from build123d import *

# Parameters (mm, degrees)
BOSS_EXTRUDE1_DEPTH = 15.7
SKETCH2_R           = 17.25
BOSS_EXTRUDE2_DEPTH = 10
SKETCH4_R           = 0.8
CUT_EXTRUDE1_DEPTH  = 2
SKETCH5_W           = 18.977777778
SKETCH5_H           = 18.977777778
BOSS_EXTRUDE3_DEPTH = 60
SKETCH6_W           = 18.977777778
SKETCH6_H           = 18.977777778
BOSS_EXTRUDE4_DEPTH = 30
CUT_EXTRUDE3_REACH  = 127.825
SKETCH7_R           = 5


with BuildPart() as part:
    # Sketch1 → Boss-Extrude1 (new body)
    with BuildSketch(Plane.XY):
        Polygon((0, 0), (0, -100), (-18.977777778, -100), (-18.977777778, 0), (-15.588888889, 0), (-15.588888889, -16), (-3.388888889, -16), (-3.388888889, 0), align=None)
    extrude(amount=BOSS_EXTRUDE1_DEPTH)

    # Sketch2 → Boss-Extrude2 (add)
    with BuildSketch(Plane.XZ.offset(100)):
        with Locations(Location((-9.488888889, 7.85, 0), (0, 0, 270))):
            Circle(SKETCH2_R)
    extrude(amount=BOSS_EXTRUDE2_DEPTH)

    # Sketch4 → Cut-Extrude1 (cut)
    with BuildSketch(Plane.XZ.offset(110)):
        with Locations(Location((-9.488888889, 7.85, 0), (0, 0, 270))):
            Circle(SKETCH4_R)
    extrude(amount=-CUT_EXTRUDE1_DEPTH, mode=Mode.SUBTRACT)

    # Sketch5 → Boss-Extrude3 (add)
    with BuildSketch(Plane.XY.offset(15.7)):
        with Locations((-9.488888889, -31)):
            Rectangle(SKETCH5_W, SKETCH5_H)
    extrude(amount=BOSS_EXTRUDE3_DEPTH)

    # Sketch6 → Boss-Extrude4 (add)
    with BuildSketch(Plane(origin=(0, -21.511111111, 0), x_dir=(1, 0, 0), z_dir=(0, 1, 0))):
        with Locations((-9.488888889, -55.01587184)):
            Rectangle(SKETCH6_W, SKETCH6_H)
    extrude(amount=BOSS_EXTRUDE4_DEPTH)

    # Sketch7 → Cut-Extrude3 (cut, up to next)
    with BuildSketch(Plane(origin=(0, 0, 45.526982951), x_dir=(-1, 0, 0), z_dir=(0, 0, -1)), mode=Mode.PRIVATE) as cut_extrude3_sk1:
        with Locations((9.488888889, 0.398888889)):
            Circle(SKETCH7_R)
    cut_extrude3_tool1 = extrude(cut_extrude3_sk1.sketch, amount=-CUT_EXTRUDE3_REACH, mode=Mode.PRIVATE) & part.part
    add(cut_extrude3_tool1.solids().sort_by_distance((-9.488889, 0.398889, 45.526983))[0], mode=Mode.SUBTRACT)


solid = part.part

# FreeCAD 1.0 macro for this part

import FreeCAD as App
import Part
import Sketcher

V = App.Vector
Q = App.Units.Quantity

doc = App.newDocument("Part")
body = doc.addObject("PartDesign::Body", "Body")

# Sketch on XY plane
sketch1 = body.newObject("Sketcher::SketchObject", "Sketch")
sketch1.AttachmentSupport = (doc.getObject("XY_Plane"), [""])
sketch1.MapMode = "FlatFace"
sketch1.addGeometry([
    Part.LineSegment(V(0, -100, 0), V(0, 0, 0)),  # 0
    Part.LineSegment(V(0, 0, 0), V(-3.388889, 0, 0)),  # 1
    Part.LineSegment(V(-3.388889, 0, 0), V(-3.388889, -16, 0)),  # 2
    Part.LineSegment(V(-3.388889, -16, 0), V(-15.588889, -16, 0)),  # 3
    Part.LineSegment(V(-15.588889, -16, 0), V(-15.588889, 0, 0)),  # 4
    Part.LineSegment(V(-15.588889, 0, 0), V(-18.977778, 0, 0)),  # 5
    Part.LineSegment(V(-18.977778, 0, 0), V(-18.977778, -100, 0)),  # 6
    Part.LineSegment(V(-18.977778, -100, 0), V(0, -100, 0)),  # 7
], False)
sketch1.addConstraint([
    Sketcher.Constraint("Coincident", 0, 2, 1, 1),
    Sketcher.Constraint("Coincident", 1, 2, 2, 1),
    Sketcher.Constraint("Coincident", 2, 2, 3, 1),
    Sketcher.Constraint("Coincident", 3, 2, 4, 1),
    Sketcher.Constraint("Coincident", 4, 2, 5, 1),
    Sketcher.Constraint("Coincident", 5, 2, 6, 1),
    Sketcher.Constraint("Coincident", 6, 2, 7, 1),
    Sketcher.Constraint("Coincident", 7, 2, 0, 1),
    Sketcher.Constraint("Vertical", 0),
    Sketcher.Constraint("Horizontal", 1),
    Sketcher.Constraint("Vertical", 2),
    Sketcher.Constraint("Horizontal", 3),
    Sketcher.Constraint("Vertical", 4),
    Sketcher.Constraint("Horizontal", 5),
    Sketcher.Constraint("Vertical", 6),
    Sketcher.Constraint("Horizontal", 7),
    Sketcher.Constraint("Coincident", 0, 2, -1, 1),
    Sketcher.Constraint("PointOnObject", 4, 2, -1),
    Sketcher.Constraint("Equal", 1, 5),
    Sketcher.Constraint("DistanceY", 0, 1, 0, 2, Q("100 mm")),
    Sketcher.Constraint("DistanceY", 2, 2, 2, 1, Q("16 mm")),
    Sketcher.Constraint("DistanceX", 3, 2, 3, 1, Q("12.2 mm")),
    Sketcher.Constraint("DistanceX", 1, 2, 1, 1, Q("3.388889 mm")),
])
pad1 = body.newObject("PartDesign::Pad", "Pad")
pad1.Profile = sketch1
pad1.Length = 15.7

# Sketch on XZ plane
sketch2 = body.newObject("Sketcher::SketchObject", "Sketch001")
sketch2.AttachmentSupport = (doc.getObject("XZ_Plane"), [""])
sketch2.MapMode = "FlatFace"
sketch2.AttachmentOffset = App.Placement(V(0, 0, 100), App.Rotation())
sketch2.addGeometry(Part.Circle(V(-9.488889, 7.85, 0), V(0, 0, 1), 17.25), False)
sketch2.addConstraint([
    Sketcher.Constraint("Diameter", 0, Q("34.5 mm")),
    Sketcher.Constraint("DistanceY", -1, 1, 0, 3, Q("7.85 mm")),
    Sketcher.Constraint("DistanceX", 0, 3, -1, 1, Q("9.488889 mm")),
])
pad2 = body.newObject("PartDesign::Pad", "Pad001")
pad2.Profile = sketch2
pad2.Length = 10

# Sketch on XZ plane
sketch3 = body.newObject("Sketcher::SketchObject", "Sketch002")
sketch3.AttachmentSupport = (doc.getObject("XZ_Plane"), [""])
sketch3.MapMode = "FlatFace"
sketch3.AttachmentOffset = App.Placement(V(0, 0, 110), App.Rotation())
sketch3.addGeometry(Part.Circle(V(-9.488889, 7.85, 0), V(0, 0, 1), 0.8), False)
sketch3.addConstraint([
    Sketcher.Constraint("Diameter", 0, Q("1.6 mm")),
    Sketcher.Constraint("DistanceY", -1, 1, 0, 3, Q("7.85 mm")),
    Sketcher.Constraint("DistanceX", 0, 3, -1, 1, Q("9.488889 mm")),
])
pocket1 = body.newObject("PartDesign::Pocket", "Pocket")
pocket1.Profile = sketch3
pocket1.Length = 2

# Sketch on XY plane
sketch4 = body.newObject("Sketcher::SketchObject", "Sketch003")
sketch4.AttachmentSupport = (doc.getObject("XY_Plane"), [""])
sketch4.MapMode = "FlatFace"
sketch4.AttachmentOffset = App.Placement(V(0, 0, 15.7), App.Rotation())
sketch4.addGeometry([
    Part.LineSegment(V(-18.977778, -21.511111, 0), V(-18.977778, -40.488889, 0)),
    Part.LineSegment(V(-18.977778, -40.488889, 0), V(0, -40.488889, 0)),
    Part.LineSegment(V(0, -40.488889, 0), V(0, -21.511111, 0)),
    Part.LineSegment(V(0, -21.511111, 0), V(-18.977778, -21.511111, 0)),
], False)
sketch4.addConstraint([
    Sketcher.Constraint("Coincident", 0, 2, 1, 1),
    Sketcher.Constraint("Coincident", 1, 2, 2, 1),
    Sketcher.Constraint("Coincident", 2, 2, 3, 1),
    Sketcher.Constraint("Coincident", 3, 2, 0, 1),
    Sketcher.Constraint("Vertical", 0),
    Sketcher.Constraint("Horizontal", 1),
    Sketcher.Constraint("Vertical", 2),
    Sketcher.Constraint("Horizontal", 3),
    Sketcher.Constraint("PointOnObject", 1, 2, -2),
    Sketcher.Constraint("Equal", 3, 0),
    Sketcher.Constraint("DistanceX", 1, 1, 1, 2, Q("18.977778 mm")),
    Sketcher.Constraint("DistanceY", 0, 2, -1, 1, Q("40.488889 mm")),
])
pad3 = body.newObject("PartDesign::Pad", "Pad002")
pad3.Profile = sketch4
pad3.Length = 60

# Sketch on XZ plane
sketch5 = body.newObject("Sketcher::SketchObject", "Sketch004")
sketch5.AttachmentSupport = (doc.getObject("XZ_Plane"), [""])
sketch5.MapMode = "FlatFace"
sketch5.AttachmentOffset = App.Placement(V(0, 0, 21.511111), App.Rotation())
sketch5.addGeometry([
    Part.LineSegment(V(-18.977778, 45.526983, 0), V(-18.977778, 64.504761, 0)),
    Part.LineSegment(V(-18.977778, 64.504761, 0), V(0, 64.504761, 0)),
    Part.LineSegment(V(0, 64.504761, 0), V(0, 45.526983, 0)),
    Part.LineSegment(V(0, 45.526983, 0), V(-18.977778, 45.526983, 0)),
], False)
sketch5.addConstraint([
    Sketcher.Constraint("Coincident", 0, 2, 1, 1),
    Sketcher.Constraint("Coincident", 1, 2, 2, 1),
    Sketcher.Constraint("Coincident", 2, 2, 3, 1),
    Sketcher.Constraint("Coincident", 3, 2, 0, 1),
    Sketcher.Constraint("Vertical", 0),
    Sketcher.Constraint("Horizontal", 1),
    Sketcher.Constraint("Vertical", 2),
    Sketcher.Constraint("Horizontal", 3),
    Sketcher.Constraint("PointOnObject", 1, 2, -2),
    Sketcher.Constraint("Equal", 3, 0),
    Sketcher.Constraint("DistanceX", 1, 1, 1, 2, Q("18.977778 mm")),
    Sketcher.Constraint("DistanceY", -1, 1, 0, 2, Q("64.504761 mm")),
])
pad4 = body.newObject("PartDesign::Pad", "Pad003")
pad4.Profile = sketch5
pad4.Length = 30
pad4.Reversed = True

# Sketch on XY plane
sketch6 = body.newObject("Sketcher::SketchObject", "Sketch005")
sketch6.AttachmentSupport = (doc.getObject("XY_Plane"), [""])
sketch6.MapMode = "FlatFace"
sketch6.AttachmentOffset = App.Placement(V(0, 0, 45.526983), App.Rotation())
sketch6.addGeometry(Part.Circle(V(-9.488889, 0.398889, 0), V(0, 0, 1), 5), False)
sketch6.addConstraint([
    Sketcher.Constraint("Diameter", 0, Q("10 mm")),
    Sketcher.Constraint("DistanceX", 0, 3, -1, 1, Q("9.488889 mm")),
    Sketcher.Constraint("DistanceY", -1, 1, 0, 3, Q("0.398889 mm")),
])
pocket2 = body.newObject("PartDesign::Pocket", "Pocket001")
pocket2.Profile = sketch6
pocket2.Type = "UpToFirst"
pocket2.Reversed = True

doc.recompute()
